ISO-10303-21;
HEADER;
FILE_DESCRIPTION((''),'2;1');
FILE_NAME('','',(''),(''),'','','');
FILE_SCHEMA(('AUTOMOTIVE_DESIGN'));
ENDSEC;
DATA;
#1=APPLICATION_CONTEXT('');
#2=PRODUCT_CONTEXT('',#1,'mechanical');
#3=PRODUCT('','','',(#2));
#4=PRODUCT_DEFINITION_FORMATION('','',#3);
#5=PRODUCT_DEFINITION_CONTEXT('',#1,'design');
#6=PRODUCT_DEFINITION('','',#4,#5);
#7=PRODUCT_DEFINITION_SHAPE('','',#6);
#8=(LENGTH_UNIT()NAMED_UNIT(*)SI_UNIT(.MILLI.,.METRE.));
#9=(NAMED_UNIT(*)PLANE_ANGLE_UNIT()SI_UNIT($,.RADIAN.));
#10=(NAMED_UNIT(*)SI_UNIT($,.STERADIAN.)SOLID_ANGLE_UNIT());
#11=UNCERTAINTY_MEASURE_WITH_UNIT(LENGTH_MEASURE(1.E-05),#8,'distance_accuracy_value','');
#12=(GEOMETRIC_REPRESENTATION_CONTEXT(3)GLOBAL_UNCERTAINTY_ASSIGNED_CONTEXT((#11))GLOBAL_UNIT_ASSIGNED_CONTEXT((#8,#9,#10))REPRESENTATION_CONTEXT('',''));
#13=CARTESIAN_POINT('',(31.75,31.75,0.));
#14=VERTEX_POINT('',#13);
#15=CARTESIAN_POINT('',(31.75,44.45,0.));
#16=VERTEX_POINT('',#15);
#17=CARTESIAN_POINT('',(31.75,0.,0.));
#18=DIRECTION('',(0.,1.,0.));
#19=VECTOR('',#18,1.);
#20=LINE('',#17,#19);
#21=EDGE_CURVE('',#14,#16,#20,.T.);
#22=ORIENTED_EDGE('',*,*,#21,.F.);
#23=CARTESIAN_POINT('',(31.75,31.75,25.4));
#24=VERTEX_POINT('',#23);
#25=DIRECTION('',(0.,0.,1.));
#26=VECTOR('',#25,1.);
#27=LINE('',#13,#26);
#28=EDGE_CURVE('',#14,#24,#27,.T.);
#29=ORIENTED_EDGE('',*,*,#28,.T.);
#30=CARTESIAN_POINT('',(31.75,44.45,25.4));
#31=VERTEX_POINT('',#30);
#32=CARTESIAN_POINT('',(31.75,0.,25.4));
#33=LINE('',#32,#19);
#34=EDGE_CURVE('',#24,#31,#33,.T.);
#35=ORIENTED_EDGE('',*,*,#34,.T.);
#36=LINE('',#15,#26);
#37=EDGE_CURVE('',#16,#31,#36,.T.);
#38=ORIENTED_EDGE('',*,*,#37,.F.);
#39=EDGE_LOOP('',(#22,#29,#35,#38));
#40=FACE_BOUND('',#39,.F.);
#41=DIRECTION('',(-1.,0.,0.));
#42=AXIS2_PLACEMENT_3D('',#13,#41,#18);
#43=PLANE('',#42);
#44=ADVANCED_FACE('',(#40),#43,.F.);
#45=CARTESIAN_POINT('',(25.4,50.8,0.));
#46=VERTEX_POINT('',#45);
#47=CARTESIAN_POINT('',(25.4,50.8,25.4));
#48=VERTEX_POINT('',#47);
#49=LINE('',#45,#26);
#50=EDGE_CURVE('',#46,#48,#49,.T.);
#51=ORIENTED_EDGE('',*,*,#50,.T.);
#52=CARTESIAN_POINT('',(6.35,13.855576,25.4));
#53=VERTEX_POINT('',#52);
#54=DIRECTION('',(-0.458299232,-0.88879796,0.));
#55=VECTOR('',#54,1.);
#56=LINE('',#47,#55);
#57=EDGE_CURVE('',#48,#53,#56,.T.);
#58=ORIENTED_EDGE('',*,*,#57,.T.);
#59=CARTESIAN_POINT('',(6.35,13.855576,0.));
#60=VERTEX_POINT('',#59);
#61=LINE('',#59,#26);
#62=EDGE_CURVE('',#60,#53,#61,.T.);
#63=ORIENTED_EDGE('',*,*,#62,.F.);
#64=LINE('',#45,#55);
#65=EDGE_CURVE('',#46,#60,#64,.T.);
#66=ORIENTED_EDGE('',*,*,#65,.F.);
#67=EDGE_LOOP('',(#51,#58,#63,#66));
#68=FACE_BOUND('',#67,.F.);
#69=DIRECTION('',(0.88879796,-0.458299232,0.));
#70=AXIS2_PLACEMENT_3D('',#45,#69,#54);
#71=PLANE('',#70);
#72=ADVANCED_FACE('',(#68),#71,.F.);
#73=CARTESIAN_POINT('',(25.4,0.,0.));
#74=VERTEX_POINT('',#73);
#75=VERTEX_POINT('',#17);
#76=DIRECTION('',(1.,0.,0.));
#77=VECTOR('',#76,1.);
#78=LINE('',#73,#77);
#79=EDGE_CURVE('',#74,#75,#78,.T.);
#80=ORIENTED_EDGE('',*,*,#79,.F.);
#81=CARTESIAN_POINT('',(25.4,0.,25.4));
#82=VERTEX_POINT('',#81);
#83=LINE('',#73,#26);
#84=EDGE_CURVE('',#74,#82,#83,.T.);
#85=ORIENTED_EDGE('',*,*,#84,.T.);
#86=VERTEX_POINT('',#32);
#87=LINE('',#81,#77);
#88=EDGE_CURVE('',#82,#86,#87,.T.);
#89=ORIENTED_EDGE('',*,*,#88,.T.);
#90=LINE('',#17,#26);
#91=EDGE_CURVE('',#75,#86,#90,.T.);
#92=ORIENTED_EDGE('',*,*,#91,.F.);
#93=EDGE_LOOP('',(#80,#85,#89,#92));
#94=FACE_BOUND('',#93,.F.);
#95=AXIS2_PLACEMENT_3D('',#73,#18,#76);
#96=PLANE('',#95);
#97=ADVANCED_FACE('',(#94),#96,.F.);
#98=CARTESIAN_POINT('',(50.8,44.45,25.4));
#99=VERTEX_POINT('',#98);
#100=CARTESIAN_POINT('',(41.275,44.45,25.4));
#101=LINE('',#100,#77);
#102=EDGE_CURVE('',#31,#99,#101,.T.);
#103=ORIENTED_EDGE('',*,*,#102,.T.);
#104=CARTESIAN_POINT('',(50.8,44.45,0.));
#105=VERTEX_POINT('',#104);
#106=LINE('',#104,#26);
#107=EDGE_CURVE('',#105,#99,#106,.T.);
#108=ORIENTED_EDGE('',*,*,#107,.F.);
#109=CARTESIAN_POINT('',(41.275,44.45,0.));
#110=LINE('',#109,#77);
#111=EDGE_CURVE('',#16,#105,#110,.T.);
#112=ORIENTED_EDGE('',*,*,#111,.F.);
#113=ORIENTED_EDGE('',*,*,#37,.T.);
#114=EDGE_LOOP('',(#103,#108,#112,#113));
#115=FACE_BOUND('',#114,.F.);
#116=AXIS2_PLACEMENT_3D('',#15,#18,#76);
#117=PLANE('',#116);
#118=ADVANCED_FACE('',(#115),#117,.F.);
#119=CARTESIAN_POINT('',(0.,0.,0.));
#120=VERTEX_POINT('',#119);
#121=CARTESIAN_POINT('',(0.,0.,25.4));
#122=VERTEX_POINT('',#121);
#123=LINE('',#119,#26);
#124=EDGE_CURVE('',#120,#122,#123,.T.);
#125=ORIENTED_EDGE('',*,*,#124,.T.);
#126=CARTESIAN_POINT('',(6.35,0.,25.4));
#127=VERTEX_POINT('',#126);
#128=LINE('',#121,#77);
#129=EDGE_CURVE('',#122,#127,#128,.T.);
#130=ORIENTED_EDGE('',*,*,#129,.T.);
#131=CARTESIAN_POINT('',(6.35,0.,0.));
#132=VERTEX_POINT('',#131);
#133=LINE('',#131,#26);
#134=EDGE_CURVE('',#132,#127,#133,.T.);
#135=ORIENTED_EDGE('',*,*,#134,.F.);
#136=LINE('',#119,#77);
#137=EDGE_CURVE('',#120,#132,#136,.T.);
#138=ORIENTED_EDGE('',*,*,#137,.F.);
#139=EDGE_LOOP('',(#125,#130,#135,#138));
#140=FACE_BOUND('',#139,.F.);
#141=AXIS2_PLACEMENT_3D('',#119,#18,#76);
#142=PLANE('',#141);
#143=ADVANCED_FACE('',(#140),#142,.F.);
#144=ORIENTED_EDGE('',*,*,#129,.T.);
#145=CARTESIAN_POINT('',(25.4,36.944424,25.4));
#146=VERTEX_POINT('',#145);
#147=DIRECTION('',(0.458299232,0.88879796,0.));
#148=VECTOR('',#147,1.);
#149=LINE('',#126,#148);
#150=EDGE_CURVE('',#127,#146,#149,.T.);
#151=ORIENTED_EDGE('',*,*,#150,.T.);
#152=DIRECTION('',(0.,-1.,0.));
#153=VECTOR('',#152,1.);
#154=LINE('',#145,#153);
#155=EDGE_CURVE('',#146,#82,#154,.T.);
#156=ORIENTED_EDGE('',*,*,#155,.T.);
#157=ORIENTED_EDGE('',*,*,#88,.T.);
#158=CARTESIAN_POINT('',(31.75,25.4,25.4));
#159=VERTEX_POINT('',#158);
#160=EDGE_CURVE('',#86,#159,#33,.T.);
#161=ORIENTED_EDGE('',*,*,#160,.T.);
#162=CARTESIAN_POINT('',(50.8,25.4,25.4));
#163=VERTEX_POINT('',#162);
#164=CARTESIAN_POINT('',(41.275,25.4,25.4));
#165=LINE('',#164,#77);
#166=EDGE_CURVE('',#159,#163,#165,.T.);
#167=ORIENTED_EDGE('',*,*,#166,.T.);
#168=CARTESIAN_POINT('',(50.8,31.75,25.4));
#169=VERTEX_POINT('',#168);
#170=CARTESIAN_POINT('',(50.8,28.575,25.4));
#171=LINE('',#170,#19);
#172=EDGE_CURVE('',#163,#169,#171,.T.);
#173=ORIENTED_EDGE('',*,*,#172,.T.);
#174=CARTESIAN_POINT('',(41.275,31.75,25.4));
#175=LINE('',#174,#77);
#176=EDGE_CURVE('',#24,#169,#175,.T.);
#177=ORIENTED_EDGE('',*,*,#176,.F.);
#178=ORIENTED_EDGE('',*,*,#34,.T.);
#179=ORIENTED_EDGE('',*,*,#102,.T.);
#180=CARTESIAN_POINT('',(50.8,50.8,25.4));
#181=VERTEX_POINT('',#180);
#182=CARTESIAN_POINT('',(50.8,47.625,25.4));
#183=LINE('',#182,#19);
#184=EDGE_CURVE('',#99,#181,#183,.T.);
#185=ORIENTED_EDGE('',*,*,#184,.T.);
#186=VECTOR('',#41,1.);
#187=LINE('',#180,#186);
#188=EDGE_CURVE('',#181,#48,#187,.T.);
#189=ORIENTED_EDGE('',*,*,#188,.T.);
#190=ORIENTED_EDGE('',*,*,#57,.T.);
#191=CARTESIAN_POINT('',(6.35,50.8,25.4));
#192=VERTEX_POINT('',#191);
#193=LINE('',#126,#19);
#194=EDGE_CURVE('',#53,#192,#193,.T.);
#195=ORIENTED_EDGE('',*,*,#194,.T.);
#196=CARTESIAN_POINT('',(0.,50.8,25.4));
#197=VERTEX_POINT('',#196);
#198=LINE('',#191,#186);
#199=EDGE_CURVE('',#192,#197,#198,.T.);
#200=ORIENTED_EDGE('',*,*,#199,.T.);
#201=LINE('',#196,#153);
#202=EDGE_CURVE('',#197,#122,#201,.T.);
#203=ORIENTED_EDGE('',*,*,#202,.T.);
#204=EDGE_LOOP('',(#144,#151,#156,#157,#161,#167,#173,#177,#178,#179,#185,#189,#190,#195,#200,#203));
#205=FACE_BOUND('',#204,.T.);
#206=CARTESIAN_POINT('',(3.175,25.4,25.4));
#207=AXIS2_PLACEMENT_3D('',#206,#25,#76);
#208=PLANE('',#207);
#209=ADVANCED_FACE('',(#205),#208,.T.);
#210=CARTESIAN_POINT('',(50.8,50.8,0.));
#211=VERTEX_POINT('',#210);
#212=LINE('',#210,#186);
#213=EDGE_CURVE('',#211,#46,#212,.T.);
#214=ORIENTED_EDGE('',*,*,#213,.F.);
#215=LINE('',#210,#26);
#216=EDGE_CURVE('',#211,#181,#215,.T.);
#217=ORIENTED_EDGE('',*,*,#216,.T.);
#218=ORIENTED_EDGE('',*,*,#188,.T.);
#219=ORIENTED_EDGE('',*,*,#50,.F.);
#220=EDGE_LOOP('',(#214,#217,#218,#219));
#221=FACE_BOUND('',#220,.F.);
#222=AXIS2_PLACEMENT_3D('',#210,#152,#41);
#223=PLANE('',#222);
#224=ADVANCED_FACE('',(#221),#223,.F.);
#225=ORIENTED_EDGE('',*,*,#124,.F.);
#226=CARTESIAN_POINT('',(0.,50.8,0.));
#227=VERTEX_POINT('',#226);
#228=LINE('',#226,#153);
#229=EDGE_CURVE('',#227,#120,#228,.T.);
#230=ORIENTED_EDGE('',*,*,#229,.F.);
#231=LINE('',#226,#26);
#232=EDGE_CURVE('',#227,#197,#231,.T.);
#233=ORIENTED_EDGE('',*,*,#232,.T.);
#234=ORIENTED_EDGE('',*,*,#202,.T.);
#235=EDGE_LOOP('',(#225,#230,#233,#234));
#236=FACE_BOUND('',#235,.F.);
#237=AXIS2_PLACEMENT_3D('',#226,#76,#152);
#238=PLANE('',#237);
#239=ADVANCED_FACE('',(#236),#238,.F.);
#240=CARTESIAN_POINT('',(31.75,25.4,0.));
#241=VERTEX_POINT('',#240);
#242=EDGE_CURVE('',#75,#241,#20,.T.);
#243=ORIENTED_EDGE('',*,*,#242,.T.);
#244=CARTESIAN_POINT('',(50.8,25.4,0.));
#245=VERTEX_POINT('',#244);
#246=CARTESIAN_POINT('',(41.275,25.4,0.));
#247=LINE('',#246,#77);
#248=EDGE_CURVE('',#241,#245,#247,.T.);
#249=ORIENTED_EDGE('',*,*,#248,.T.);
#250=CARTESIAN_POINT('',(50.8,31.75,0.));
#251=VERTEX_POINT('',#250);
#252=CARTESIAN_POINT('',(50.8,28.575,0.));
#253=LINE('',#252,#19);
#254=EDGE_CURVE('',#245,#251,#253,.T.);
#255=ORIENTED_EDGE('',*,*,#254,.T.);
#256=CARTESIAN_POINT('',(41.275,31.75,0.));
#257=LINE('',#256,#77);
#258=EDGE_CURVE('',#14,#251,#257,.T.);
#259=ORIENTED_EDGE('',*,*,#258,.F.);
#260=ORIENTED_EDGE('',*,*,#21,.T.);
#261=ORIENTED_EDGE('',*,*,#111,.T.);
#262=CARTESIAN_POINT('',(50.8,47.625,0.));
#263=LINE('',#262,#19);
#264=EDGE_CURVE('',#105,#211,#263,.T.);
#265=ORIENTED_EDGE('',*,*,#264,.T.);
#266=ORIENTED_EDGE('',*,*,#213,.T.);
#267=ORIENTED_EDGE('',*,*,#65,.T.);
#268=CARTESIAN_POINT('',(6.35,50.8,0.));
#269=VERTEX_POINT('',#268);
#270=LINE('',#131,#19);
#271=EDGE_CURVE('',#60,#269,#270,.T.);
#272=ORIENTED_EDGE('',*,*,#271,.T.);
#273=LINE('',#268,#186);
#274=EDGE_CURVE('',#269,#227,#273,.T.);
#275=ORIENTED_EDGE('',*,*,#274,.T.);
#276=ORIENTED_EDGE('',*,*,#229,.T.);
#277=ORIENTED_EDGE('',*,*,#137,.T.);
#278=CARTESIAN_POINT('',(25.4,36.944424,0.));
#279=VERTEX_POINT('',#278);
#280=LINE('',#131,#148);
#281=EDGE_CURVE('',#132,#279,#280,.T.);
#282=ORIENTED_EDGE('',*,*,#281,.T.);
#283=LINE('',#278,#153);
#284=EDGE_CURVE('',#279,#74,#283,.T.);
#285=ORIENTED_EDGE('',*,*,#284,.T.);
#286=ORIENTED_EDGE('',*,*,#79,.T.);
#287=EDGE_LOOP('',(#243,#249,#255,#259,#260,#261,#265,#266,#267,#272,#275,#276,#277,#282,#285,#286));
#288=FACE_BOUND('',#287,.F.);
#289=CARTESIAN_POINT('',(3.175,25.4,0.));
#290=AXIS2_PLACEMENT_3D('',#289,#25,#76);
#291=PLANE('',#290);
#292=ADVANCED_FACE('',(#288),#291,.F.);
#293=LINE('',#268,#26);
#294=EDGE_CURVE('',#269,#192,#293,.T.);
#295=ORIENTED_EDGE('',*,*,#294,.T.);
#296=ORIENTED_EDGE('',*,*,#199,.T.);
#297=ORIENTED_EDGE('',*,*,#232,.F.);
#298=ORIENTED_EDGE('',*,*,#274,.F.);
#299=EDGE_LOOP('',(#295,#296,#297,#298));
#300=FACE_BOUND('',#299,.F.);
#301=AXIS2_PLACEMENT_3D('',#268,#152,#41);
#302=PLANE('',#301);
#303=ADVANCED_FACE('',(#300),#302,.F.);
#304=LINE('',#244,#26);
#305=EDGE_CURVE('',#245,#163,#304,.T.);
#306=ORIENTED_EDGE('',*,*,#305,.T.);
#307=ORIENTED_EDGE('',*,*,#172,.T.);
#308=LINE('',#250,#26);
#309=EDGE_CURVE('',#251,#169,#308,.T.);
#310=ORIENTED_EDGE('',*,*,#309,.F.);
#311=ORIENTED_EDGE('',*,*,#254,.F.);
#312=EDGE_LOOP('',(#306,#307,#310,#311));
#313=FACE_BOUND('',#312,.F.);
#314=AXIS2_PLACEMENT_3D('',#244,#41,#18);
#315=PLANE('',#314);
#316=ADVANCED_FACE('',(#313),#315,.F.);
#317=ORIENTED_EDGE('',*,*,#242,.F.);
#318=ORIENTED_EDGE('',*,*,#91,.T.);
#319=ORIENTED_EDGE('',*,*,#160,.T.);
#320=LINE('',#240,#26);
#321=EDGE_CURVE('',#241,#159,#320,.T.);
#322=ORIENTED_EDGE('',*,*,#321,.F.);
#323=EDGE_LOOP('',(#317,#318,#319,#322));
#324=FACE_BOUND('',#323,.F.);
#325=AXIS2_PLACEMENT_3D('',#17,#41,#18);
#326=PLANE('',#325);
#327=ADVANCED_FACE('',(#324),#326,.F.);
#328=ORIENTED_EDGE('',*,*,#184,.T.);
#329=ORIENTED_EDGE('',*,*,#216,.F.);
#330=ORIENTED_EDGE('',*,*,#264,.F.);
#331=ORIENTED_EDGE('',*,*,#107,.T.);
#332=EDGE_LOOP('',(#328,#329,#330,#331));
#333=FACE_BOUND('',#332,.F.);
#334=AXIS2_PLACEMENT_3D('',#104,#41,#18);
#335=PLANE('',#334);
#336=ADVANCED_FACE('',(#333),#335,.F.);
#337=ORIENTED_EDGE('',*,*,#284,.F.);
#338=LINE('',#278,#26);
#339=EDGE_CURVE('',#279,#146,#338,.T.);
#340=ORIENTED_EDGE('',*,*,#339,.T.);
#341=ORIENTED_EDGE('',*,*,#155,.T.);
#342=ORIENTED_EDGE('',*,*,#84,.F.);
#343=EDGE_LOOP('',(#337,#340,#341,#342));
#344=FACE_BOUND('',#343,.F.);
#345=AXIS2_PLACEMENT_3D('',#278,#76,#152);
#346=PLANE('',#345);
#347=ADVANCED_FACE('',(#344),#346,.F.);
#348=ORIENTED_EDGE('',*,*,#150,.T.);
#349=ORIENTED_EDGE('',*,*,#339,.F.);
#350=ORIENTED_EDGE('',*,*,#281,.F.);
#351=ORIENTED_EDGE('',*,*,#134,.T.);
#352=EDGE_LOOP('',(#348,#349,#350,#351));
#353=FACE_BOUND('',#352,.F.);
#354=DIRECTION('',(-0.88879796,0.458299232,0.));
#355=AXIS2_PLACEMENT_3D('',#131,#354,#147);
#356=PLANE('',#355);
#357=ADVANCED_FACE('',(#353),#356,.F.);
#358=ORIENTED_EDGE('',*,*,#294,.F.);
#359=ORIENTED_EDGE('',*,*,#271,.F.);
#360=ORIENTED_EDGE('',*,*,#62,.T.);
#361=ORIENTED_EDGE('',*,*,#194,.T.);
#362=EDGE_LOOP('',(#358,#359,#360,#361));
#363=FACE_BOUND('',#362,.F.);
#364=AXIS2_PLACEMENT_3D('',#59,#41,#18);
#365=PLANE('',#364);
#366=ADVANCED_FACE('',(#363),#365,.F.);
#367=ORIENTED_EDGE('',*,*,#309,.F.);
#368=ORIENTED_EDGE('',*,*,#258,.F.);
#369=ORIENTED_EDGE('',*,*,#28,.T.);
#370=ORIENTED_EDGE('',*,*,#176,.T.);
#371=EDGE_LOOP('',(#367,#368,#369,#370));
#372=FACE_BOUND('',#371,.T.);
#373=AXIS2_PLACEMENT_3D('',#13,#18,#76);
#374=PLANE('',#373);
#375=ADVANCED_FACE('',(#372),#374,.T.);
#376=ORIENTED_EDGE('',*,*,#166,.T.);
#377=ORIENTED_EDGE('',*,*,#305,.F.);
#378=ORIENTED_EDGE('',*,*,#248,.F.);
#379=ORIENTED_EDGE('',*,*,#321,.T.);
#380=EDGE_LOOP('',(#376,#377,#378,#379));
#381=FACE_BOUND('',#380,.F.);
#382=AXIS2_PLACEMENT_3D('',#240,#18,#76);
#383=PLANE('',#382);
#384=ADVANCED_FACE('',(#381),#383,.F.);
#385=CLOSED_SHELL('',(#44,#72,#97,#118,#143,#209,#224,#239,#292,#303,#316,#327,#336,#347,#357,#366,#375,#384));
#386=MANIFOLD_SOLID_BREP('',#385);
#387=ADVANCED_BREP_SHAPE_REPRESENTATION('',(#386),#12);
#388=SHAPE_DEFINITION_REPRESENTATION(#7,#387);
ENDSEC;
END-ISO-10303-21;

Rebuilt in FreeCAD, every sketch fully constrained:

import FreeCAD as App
import Part
import Sketcher
from FreeCAD import Vector
Q = App.Units.Quantity

doc = App.newDocument("Part")
body = doc.addObject("PartDesign::Body", "Body")

# Sketch on XY plane
sketch1 = body.newObject("Sketcher::SketchObject", "Sketch")
sketch1.AttachmentSupport = (doc.getObject("XY_Plane"), [""])
sketch1.MapMode = "FlatFace"
sketch1.addGeometry([
    Part.LineSegment(Vector(0, 50.8, 0), Vector(0, 0, 0)),  # 0
    Part.LineSegment(Vector(0, 0, 0), Vector(6.35, 0, 0)),  # 1
    Part.LineSegment(Vector(6.35, 0, 0), Vector(25.4, 36.944424, 0)),  # 2
    Part.LineSegment(Vector(25.4, 36.944424, 0), Vector(25.4, 0, 0)),  # 3
    Part.LineSegment(Vector(25.4, 0, 0), Vector(31.75, 0, 0)),  # 4
    Part.LineSegment(Vector(31.75, 0, 0), Vector(31.75, 25.4, 0)),  # 5
    Part.LineSegment(Vector(31.75, 25.4, 0), Vector(50.8, 25.4, 0)),  # 6
    Part.LineSegment(Vector(50.8, 25.4, 0), Vector(50.8, 31.75, 0)),  # 7
    Part.LineSegment(Vector(50.8, 31.75, 0), Vector(31.75, 31.75, 0)),  # 8
    Part.LineSegment(Vector(31.75, 31.75, 0), Vector(31.75, 44.45, 0)),  # 9
    Part.LineSegment(Vector(31.75, 44.45, 0), Vector(50.8, 44.45, 0)),  # 10
    Part.LineSegment(Vector(50.8, 44.45, 0), Vector(50.8, 50.8, 0)),  # 11
    Part.LineSegment(Vector(50.8, 50.8, 0), Vector(25.4, 50.8, 0)),  # 12
    Part.LineSegment(Vector(25.4, 50.8, 0), Vector(6.35, 13.855576, 0)),  # 13
    Part.LineSegment(Vector(6.35, 13.855576, 0), Vector(6.35, 50.8, 0)),  # 14
    Part.LineSegment(Vector(6.35, 50.8, 0), Vector(0, 50.8, 0)),  # 15
], False)
sketch1.addConstraint([
    Sketcher.Constraint("Coincident", 0, 2, 1, 1),
    Sketcher.Constraint("Coincident", 1, 2, 2, 1),
    Sketcher.Constraint("Coincident", 2, 2, 3, 1),
    Sketcher.Constraint("Coincident", 3, 2, 4, 1),
    Sketcher.Constraint("Coincident", 4, 2, 5, 1),
    Sketcher.Constraint("Coincident", 5, 2, 6, 1),
    Sketcher.Constraint("Coincident", 6, 2, 7, 1),
    Sketcher.Constraint("Coincident", 7, 2, 8, 1),
    Sketcher.Constraint("Coincident", 8, 2, 9, 1),
    Sketcher.Constraint("Coincident", 9, 2, 10, 1),
    Sketcher.Constraint("Coincident", 10, 2, 11, 1),
    Sketcher.Constraint("Coincident", 11, 2, 12, 1),
    Sketcher.Constraint("Coincident", 12, 2, 13, 1),
    Sketcher.Constraint("Coincident", 13, 2, 14, 1),
    Sketcher.Constraint("Coincident", 14, 2, 15, 1),
    Sketcher.Constraint("Coincident", 15, 2, 0, 1),
    Sketcher.Constraint("Vertical", 0),
    Sketcher.Constraint("Horizontal", 1),
    Sketcher.Constraint("Vertical", 3),
    Sketcher.Constraint("Horizontal", 4),
    Sketcher.Constraint("Vertical", 5),
    Sketcher.Constraint("Horizontal", 6),
    Sketcher.Constraint("Vertical", 7),
    Sketcher.Constraint("Horizontal", 8),
    Sketcher.Constraint("Vertical", 9),
    Sketcher.Constraint("Horizontal", 10),
    Sketcher.Constraint("Vertical", 11),
    Sketcher.Constraint("Horizontal", 12),
    Sketcher.Constraint("Vertical", 14),
    Sketcher.Constraint("Horizontal", 15),
    Sketcher.Constraint("Coincident", 0, 2, -1, 1),
    Sketcher.Constraint("PointOnObject", 3, 2, -1),
    Sketcher.Constraint("Parallel", 2, 13),
    Sketcher.Constraint("Horizontal", 12, 2, 14, 2),
    Sketcher.Constraint("Vertical", 5, 2, 8, 2),
    Sketcher.Constraint("Vertical", 7, 2, 10, 2),
    Sketcher.Constraint("Vertical", 3, 2, 12, 2),
    Sketcher.Constraint("Vertical", 1, 2, 13, 2),
    Sketcher.Constraint("Equal", 1, 4),
    Sketcher.Constraint("Equal", 12, 5),
    Sketcher.Constraint("Equal", 15, 7),
    Sketcher.Constraint("Equal", 7, 11),
    Sketcher.Constraint("DistanceX", 12, 2, 12, 1, Q("1 in")),
    Sketcher.Constraint("DistanceY", 0, 2, 0, 1, Q("2 in")),
    Sketcher.Constraint("DistanceY", 9, 1, 9, 2, Q("0.5 in")),
    Sketcher.Constraint("DistanceX", -1, 1, 2, 2, Q("1 in")),
    Sketcher.Constraint("Distance", 2, 41.566729),
])
pad1 = body.newObject("PartDesign::Pad", "Pad")
pad1.Profile = sketch1
pad1.Length = Q("1 in")

doc.recompute()
